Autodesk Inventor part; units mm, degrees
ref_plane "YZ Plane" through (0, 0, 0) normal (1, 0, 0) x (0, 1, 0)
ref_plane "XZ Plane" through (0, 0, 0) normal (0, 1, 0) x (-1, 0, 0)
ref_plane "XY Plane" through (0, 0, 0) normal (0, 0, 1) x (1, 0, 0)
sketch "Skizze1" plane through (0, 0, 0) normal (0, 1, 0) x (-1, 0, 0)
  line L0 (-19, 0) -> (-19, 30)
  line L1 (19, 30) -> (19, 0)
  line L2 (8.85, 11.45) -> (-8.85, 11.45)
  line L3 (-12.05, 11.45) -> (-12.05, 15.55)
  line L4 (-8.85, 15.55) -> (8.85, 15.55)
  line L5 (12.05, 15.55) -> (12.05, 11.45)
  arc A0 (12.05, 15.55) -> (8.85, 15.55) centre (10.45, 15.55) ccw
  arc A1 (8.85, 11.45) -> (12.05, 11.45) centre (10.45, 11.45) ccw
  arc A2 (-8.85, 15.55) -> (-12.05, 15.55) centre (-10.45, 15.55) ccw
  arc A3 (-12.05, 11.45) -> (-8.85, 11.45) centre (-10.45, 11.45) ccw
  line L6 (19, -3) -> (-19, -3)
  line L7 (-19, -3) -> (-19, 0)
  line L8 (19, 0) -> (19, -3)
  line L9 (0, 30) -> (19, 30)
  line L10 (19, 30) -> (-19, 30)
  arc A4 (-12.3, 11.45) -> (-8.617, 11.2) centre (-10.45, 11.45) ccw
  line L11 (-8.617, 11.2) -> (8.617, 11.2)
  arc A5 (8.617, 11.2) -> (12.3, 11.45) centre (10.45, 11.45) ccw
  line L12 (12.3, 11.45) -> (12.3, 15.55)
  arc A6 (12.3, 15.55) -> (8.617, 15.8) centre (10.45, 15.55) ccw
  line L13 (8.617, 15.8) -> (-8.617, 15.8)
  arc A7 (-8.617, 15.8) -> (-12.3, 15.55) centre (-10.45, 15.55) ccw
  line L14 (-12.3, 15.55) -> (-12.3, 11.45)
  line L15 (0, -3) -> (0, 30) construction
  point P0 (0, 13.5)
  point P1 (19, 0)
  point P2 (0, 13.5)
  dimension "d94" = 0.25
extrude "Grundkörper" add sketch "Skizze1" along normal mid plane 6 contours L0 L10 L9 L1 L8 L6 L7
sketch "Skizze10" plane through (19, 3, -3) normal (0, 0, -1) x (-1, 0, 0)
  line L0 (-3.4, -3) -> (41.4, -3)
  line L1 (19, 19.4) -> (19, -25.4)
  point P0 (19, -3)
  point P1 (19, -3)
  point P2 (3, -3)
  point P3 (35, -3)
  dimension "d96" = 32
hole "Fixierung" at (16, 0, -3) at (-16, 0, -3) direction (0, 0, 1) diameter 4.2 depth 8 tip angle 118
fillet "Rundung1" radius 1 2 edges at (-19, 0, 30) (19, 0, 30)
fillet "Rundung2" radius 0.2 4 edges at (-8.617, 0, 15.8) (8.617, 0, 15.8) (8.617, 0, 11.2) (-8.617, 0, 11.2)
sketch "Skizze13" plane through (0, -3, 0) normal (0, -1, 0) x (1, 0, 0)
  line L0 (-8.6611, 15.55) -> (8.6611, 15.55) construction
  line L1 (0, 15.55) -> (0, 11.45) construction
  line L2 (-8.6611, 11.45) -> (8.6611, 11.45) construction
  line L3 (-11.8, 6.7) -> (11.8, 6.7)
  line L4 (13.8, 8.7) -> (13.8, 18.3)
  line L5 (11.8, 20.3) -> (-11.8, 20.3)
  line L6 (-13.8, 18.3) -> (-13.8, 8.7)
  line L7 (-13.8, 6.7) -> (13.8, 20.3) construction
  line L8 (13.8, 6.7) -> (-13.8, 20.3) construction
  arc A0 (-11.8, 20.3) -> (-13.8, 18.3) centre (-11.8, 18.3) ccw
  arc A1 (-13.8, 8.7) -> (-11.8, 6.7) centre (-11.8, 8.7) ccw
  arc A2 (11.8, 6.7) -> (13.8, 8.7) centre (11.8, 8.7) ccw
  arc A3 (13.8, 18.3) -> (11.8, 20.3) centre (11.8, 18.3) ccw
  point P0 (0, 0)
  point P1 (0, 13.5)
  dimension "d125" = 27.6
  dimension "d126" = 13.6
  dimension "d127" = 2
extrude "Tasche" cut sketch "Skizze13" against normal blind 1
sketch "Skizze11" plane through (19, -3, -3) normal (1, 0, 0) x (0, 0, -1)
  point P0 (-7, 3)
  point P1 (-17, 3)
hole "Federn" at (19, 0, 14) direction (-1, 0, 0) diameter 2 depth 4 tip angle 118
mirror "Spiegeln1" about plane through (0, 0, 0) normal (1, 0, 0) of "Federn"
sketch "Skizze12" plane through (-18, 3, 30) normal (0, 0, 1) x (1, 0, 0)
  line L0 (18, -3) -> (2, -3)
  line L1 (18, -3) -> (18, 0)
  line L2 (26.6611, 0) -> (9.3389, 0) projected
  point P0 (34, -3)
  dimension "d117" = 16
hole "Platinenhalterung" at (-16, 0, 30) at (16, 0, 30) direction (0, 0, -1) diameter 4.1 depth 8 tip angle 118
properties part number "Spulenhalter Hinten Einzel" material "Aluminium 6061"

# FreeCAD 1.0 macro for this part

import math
import FreeCAD as App
import Part
import Sketcher
from FreeCAD import Vector
Q = App.Units.Quantity


def edges_at(feature, points):
    """Names of the edges that pass closest to the given points."""
    edges = feature.Shape.Edges
    near = lambda p: min(range(len(edges)), key=lambda i: edges[i].distToShape(Part.Vertex(*p))[0])
    return sorted({f"Edge{near(p) + 1}" for p in points})


def add_polygon(sketch, points):
    """Adds a closed chain of lines whose ends are joined by coincident constraints."""
    first, n = sketch.GeometryCount, len(points)
    for a, b in zip(points, points[1:] + points[:1]):
        sketch.addGeometry(Part.LineSegment(App.Vector(*a, 0), App.Vector(*b, 0)), False)
    for i in range(n):
        sketch.addConstraint(Sketcher.Constraint("Coincident", first + i, 2, first + (i + 1) % n, 1))

doc = App.newDocument("Part")
body = doc.addObject("PartDesign::Body", "Body")

# Sketch on XZ plane
sketch1 = body.newObject("Sketcher::SketchObject", "Sketch")
sketch1.AttachmentSupport = (doc.getObject("XZ_Plane"), [""])
sketch1.MapMode = "FlatFace"
add_polygon(sketch1, [(19, 30), (19, -3), (-19, -3), (-19, 30)])  # lines 0-3
sketch1.addGeometry(Part.ArcOfCircle(Part.Circle(Vector(10.4, 11.4, 0), Vector(0, 0, 1), 1.9), math.radians(-172), math.radians(0)), False)  # 4
sketch1.addGeometry(Part.LineSegment(Vector(12.3, 11.4, 0), Vector(12.3, 15.6, 0)), False)  # 5
sketch1.addGeometry(Part.ArcOfCircle(Part.Circle(Vector(10.4, 15.6, 0), Vector(0, 0, 1), 1.8), math.radians(0), math.radians(172)), False)  # 6
sketch1.addGeometry(Part.LineSegment(Vector(8.6, 15.8, 0), Vector(-8.6, 15.8, 0)), False)  # 7
sketch1.addGeometry(Part.ArcOfCircle(Part.Circle(Vector(-10.4, 15.6, 0), Vector(0, 0, 1), 1.9), math.radians(8), math.radians(180)), False)  # 8
sketch1.addGeometry(Part.LineSegment(Vector(-12.3, 15.6, 0), Vector(-12.3, 11.4, 0)), False)  # 9
sketch1.addGeometry(Part.ArcOfCircle(Part.Circle(Vector(-10.4, 11.4, 0), Vector(0, 0, 1), 1.8), math.radians(180), math.radians(352)), False)  # 10
sketch1.addGeometry(Part.LineSegment(Vector(-8.6, 11.2, 0), Vector(8.6, 11.2, 0)), False)  # 11
sketch1.addConstraint([
    Sketcher.Constraint("Tangent", 4, 2, 5, 1),
    Sketcher.Constraint("Tangent", 5, 2, 6, 1),
    Sketcher.Constraint("Coincident", 6, 2, 7, 1),
    Sketcher.Constraint("Coincident", 7, 2, 8, 1),
    Sketcher.Constraint("Tangent", 8, 2, 9, 1),
    Sketcher.Constraint("Tangent", 9, 2, 10, 1),
    Sketcher.Constraint("Coincident", 10, 2, 11, 1),
    Sketcher.Constraint("Coincident", 11, 2, 4, 1),
    Sketcher.Constraint("Vertical", 0),
    Sketcher.Constraint("Horizontal", 1),
    Sketcher.Constraint("Vertical", 2),
    Sketcher.Constraint("Horizontal", 3),
    Sketcher.Constraint("Vertical", 5),
    Sketcher.Constraint("Horizontal", 7),
    Sketcher.Constraint("Vertical", 9),
    Sketcher.Constraint("Horizontal", 11),
    Sketcher.Constraint("Equal", 4, 6),
    Sketcher.Constraint("Equal", 6, 8),
    Sketcher.Constraint("Equal", 8, 10),
    Sketcher.Constraint("Symmetric", 6, 3, 8, 3, -2),
    Sketcher.Constraint("Horizontal", 4, 3, 10, 3),
    Sketcher.Constraint("Vertical", 7, 2, 10, 2),
    Sketcher.Constraint("DistanceX", 1, 2, 1, 1, Q("38 mm")),
    Sketcher.Constraint("DistanceY", 0, 2, 0, 1, Q("33 mm")),
    Sketcher.Constraint("Radius", 4, Q("1.85 mm")),
    Sketcher.Constraint("DistanceY", 6, 3, 6, 2, Q("0.25 mm")),
    Sketcher.Constraint("DistanceY", 5, 1, 5, 2, Q("4.1 mm")),
    Sketcher.Constraint("DistanceX", -1, 1, 0, 2, Q("19 mm")),
    Sketcher.Constraint("DistanceY", 0, 2, -1, 1, Q("3 mm")),
    Sketcher.Constraint("DistanceX", -1, 1, 4, 2, Q("12.3 mm")),
    Sketcher.Constraint("DistanceY", -1, 1, 6, 2, Q("15.8 mm")),
])
pad1 = body.newObject("PartDesign::Pad", "Pad")
pad1.Profile = sketch1
pad1.Length = 6
pad1.Midplane = True

# Sketch on XY plane
sketch2 = body.newObject("Sketcher::SketchObject", "Sketch001")
sketch2.AttachmentSupport = (doc.getObject("XY_Plane"), [""])
sketch2.MapMode = "FlatFace"
sketch2.AttachmentOffset = App.Placement(Vector(0, 0, -3), App.Rotation())
sketch2.addGeometry([
    Part.Circle(Vector(16, 0, 0), Vector(0, 0, 1), 2.1),
    Part.Circle(Vector(-16, 0, 0), Vector(0, 0, 1), 2.1),
], False)
sketch2.addConstraint([
    Sketcher.Constraint("Equal", 0, 1),
    Sketcher.Constraint("Symmetric", 0, 3, 1, 3, -1, 1),
    Sketcher.Constraint("PointOnObject", 0, 3, -1),
    Sketcher.Constraint("Diameter", 0, Q("4.2 mm")),
    Sketcher.Constraint("DistanceX", -1, 1, 0, 3, Q("16 mm")),
])
doc.recompute()
hole = body.newObject("PartDesign::Hole", "Hole")
hole.Profile = sketch2
hole.ThreadType = "None"
hole.Diameter = 4.2
hole.DepthType = "Dimension"
hole.Depth = 8
hole.DrillPoint = "Angled"
hole.DrillPointAngle = 118
hole.Reversed = True
doc.recompute()

fillet = body.newObject("PartDesign::Fillet", "Fillet")
fillet.Base = (hole, edges_at(hole, [(-19, 0, 30), (19, 0, 30)]))
fillet.Radius = 1
doc.recompute()

fillet2 = body.newObject("PartDesign::Fillet", "Fillet001")
fillet2.Base = (fillet, edges_at(fillet, [
    (-8.617, 0, 15.8),
    (8.617, 0, 15.8),
    (8.617, 0, 11.2),
    (-8.617, 0, 11.2),
]))
fillet2.Radius = 0.2

# Sketch on XZ plane
sketch3 = body.newObject("Sketcher::SketchObject", "Sketch002")
sketch3.AttachmentSupport = (doc.getObject("XZ_Plane"), [""])
sketch3.MapMode = "FlatFace"
sketch3.AttachmentOffset = App.Placement(Vector(0, 0, 3), App.Rotation())
sketch3.addGeometry([
    Part.ArcOfCircle(Part.Circle(Vector(-11.8, 8.7, 0), Vector(0, 0, 1), 2), math.radians(180), math.radians(270)),  # 0
    Part.LineSegment(Vector(-11.8, 6.7, 0), Vector(11.8, 6.7, 0)),  # 1
    Part.ArcOfCircle(Part.Circle(Vector(11.8, 8.7, 0), Vector(0, 0, 1), 2), math.radians(-90), math.radians(0)),  # 2
    Part.LineSegment(Vector(13.8, 8.7, 0), Vector(13.8, 18.3, 0)),  # 3
    Part.ArcOfCircle(Part.Circle(Vector(11.8, 18.3, 0), Vector(0, 0, 1), 2), math.radians(0), math.radians(90)),  # 4
    Part.LineSegment(Vector(11.8, 20.3, 0), Vector(-11.8, 20.3, 0)),  # 5
    Part.ArcOfCircle(Part.Circle(Vector(-11.8, 18.3, 0), Vector(0, 0, 1), 2), math.radians(90), math.radians(180)),  # 6
    Part.LineSegment(Vector(-13.8, 18.3, 0), Vector(-13.8, 8.7, 0)),  # 7
], False)
sketch3.addConstraint([
    Sketcher.Constraint("Tangent", 0, 2, 1, 1),
    Sketcher.Constraint("Tangent", 1, 2, 2, 1),
    Sketcher.Constraint("Tangent", 2, 2, 3, 1),
    Sketcher.Constraint("Tangent", 3, 2, 4, 1),
    Sketcher.Constraint("Tangent", 4, 2, 5, 1),
    Sketcher.Constraint("Tangent", 5, 2, 6, 1),
    Sketcher.Constraint("Tangent", 6, 2, 7, 1),
    Sketcher.Constraint("Tangent", 7, 2, 0, 1),
    Sketcher.Constraint("Horizontal", 1),
    Sketcher.Constraint("Vertical", 3),
    Sketcher.Constraint("Horizontal", 5),
    Sketcher.Constraint("Vertical", 7),
    Sketcher.Constraint("Equal", 0, 2),
    Sketcher.Constraint("Equal", 2, 4),
    Sketcher.Constraint("Equal", 4, 6),
    Sketcher.Constraint("Radius", 0, Q("2 mm")),
    Sketcher.Constraint("DistanceY", 1, 2, 4, 2, Q("13.6 mm")),
    Sketcher.Constraint("DistanceX", 1, 1, 1, 2, Q("23.6 mm")),
    Sketcher.Constraint("DistanceX", 0, 3, -1, 1, Q("11.8 mm")),
    Sketcher.Constraint("DistanceY", -1, 1, 0, 3, Q("8.7 mm")),
])
pocket1 = body.newObject("PartDesign::Pocket", "Pocket")
pocket1.Profile = sketch3
pocket1.Length = 1

# Sketch on YZ plane
sketch4 = body.newObject("Sketcher::SketchObject", "Sketch003")
sketch4.AttachmentSupport = (doc.getObject("YZ_Plane"), [""])
sketch4.MapMode = "FlatFace"
sketch4.AttachmentOffset = App.Placement(Vector(0, 0, 19), App.Rotation())
sketch4.addGeometry(Part.Circle(Vector(0, 14, 0), Vector(0, 0, 1), 1), False)
sketch4.addConstraint([
    Sketcher.Constraint("PointOnObject", 0, 3, -2),
    Sketcher.Constraint("Diameter", 0, Q("2 mm")),
    Sketcher.Constraint("DistanceY", -1, 1, 0, 3, Q("14 mm")),
])
doc.recompute()
hole2 = body.newObject("PartDesign::Hole", "Hole001")
hole2.Profile = sketch4
hole2.ThreadType = "None"
hole2.Diameter = 2
hole2.DepthType = "Dimension"
hole2.Depth = 4
hole2.DrillPoint = "Angled"
hole2.DrillPointAngle = 118
doc.recompute()

mirrored = body.newObject("PartDesign::Mirrored", "Mirrored")
mirrored.Originals = [hole2]
mirrored.MirrorPlane = (doc.getObject("YZ_Plane"), [""])
body.Tip = mirrored

# Sketch on XY plane
sketch5 = body.newObject("Sketcher::SketchObject", "Sketch004")
sketch5.AttachmentSupport = (doc.getObject("XY_Plane"), [""])
sketch5.MapMode = "FlatFace"
sketch5.AttachmentOffset = App.Placement(Vector(0, 0, 30), App.Rotation())
sketch5.addGeometry([
    Part.Circle(Vector(-16, 0, 0), Vector(0, 0, 1), 2),
    Part.Circle(Vector(16, 0, 0), Vector(0, 0, 1), 2),
], False)
sketch5.addConstraint([
    Sketcher.Constraint("Equal", 0, 1),
    Sketcher.Constraint("Symmetric", 0, 3, 1, 3, -1, 1),
    Sketcher.Constraint("PointOnObject", 0, 3, -1),
    Sketcher.Constraint("Diameter", 0, Q("4.1 mm")),
    Sketcher.Constraint("DistanceX", 0, 3, -1, 1, Q("16 mm")),
])
doc.recompute()
hole3 = body.newObject("PartDesign::Hole", "Hole002")
hole3.Profile = sketch5
hole3.ThreadType = "None"
hole3.Diameter = 4.1
hole3.DepthType = "Dimension"
hole3.Depth = 8
hole3.DrillPoint = "Angled"
hole3.DrillPointAngle = 118

doc.recompute()
